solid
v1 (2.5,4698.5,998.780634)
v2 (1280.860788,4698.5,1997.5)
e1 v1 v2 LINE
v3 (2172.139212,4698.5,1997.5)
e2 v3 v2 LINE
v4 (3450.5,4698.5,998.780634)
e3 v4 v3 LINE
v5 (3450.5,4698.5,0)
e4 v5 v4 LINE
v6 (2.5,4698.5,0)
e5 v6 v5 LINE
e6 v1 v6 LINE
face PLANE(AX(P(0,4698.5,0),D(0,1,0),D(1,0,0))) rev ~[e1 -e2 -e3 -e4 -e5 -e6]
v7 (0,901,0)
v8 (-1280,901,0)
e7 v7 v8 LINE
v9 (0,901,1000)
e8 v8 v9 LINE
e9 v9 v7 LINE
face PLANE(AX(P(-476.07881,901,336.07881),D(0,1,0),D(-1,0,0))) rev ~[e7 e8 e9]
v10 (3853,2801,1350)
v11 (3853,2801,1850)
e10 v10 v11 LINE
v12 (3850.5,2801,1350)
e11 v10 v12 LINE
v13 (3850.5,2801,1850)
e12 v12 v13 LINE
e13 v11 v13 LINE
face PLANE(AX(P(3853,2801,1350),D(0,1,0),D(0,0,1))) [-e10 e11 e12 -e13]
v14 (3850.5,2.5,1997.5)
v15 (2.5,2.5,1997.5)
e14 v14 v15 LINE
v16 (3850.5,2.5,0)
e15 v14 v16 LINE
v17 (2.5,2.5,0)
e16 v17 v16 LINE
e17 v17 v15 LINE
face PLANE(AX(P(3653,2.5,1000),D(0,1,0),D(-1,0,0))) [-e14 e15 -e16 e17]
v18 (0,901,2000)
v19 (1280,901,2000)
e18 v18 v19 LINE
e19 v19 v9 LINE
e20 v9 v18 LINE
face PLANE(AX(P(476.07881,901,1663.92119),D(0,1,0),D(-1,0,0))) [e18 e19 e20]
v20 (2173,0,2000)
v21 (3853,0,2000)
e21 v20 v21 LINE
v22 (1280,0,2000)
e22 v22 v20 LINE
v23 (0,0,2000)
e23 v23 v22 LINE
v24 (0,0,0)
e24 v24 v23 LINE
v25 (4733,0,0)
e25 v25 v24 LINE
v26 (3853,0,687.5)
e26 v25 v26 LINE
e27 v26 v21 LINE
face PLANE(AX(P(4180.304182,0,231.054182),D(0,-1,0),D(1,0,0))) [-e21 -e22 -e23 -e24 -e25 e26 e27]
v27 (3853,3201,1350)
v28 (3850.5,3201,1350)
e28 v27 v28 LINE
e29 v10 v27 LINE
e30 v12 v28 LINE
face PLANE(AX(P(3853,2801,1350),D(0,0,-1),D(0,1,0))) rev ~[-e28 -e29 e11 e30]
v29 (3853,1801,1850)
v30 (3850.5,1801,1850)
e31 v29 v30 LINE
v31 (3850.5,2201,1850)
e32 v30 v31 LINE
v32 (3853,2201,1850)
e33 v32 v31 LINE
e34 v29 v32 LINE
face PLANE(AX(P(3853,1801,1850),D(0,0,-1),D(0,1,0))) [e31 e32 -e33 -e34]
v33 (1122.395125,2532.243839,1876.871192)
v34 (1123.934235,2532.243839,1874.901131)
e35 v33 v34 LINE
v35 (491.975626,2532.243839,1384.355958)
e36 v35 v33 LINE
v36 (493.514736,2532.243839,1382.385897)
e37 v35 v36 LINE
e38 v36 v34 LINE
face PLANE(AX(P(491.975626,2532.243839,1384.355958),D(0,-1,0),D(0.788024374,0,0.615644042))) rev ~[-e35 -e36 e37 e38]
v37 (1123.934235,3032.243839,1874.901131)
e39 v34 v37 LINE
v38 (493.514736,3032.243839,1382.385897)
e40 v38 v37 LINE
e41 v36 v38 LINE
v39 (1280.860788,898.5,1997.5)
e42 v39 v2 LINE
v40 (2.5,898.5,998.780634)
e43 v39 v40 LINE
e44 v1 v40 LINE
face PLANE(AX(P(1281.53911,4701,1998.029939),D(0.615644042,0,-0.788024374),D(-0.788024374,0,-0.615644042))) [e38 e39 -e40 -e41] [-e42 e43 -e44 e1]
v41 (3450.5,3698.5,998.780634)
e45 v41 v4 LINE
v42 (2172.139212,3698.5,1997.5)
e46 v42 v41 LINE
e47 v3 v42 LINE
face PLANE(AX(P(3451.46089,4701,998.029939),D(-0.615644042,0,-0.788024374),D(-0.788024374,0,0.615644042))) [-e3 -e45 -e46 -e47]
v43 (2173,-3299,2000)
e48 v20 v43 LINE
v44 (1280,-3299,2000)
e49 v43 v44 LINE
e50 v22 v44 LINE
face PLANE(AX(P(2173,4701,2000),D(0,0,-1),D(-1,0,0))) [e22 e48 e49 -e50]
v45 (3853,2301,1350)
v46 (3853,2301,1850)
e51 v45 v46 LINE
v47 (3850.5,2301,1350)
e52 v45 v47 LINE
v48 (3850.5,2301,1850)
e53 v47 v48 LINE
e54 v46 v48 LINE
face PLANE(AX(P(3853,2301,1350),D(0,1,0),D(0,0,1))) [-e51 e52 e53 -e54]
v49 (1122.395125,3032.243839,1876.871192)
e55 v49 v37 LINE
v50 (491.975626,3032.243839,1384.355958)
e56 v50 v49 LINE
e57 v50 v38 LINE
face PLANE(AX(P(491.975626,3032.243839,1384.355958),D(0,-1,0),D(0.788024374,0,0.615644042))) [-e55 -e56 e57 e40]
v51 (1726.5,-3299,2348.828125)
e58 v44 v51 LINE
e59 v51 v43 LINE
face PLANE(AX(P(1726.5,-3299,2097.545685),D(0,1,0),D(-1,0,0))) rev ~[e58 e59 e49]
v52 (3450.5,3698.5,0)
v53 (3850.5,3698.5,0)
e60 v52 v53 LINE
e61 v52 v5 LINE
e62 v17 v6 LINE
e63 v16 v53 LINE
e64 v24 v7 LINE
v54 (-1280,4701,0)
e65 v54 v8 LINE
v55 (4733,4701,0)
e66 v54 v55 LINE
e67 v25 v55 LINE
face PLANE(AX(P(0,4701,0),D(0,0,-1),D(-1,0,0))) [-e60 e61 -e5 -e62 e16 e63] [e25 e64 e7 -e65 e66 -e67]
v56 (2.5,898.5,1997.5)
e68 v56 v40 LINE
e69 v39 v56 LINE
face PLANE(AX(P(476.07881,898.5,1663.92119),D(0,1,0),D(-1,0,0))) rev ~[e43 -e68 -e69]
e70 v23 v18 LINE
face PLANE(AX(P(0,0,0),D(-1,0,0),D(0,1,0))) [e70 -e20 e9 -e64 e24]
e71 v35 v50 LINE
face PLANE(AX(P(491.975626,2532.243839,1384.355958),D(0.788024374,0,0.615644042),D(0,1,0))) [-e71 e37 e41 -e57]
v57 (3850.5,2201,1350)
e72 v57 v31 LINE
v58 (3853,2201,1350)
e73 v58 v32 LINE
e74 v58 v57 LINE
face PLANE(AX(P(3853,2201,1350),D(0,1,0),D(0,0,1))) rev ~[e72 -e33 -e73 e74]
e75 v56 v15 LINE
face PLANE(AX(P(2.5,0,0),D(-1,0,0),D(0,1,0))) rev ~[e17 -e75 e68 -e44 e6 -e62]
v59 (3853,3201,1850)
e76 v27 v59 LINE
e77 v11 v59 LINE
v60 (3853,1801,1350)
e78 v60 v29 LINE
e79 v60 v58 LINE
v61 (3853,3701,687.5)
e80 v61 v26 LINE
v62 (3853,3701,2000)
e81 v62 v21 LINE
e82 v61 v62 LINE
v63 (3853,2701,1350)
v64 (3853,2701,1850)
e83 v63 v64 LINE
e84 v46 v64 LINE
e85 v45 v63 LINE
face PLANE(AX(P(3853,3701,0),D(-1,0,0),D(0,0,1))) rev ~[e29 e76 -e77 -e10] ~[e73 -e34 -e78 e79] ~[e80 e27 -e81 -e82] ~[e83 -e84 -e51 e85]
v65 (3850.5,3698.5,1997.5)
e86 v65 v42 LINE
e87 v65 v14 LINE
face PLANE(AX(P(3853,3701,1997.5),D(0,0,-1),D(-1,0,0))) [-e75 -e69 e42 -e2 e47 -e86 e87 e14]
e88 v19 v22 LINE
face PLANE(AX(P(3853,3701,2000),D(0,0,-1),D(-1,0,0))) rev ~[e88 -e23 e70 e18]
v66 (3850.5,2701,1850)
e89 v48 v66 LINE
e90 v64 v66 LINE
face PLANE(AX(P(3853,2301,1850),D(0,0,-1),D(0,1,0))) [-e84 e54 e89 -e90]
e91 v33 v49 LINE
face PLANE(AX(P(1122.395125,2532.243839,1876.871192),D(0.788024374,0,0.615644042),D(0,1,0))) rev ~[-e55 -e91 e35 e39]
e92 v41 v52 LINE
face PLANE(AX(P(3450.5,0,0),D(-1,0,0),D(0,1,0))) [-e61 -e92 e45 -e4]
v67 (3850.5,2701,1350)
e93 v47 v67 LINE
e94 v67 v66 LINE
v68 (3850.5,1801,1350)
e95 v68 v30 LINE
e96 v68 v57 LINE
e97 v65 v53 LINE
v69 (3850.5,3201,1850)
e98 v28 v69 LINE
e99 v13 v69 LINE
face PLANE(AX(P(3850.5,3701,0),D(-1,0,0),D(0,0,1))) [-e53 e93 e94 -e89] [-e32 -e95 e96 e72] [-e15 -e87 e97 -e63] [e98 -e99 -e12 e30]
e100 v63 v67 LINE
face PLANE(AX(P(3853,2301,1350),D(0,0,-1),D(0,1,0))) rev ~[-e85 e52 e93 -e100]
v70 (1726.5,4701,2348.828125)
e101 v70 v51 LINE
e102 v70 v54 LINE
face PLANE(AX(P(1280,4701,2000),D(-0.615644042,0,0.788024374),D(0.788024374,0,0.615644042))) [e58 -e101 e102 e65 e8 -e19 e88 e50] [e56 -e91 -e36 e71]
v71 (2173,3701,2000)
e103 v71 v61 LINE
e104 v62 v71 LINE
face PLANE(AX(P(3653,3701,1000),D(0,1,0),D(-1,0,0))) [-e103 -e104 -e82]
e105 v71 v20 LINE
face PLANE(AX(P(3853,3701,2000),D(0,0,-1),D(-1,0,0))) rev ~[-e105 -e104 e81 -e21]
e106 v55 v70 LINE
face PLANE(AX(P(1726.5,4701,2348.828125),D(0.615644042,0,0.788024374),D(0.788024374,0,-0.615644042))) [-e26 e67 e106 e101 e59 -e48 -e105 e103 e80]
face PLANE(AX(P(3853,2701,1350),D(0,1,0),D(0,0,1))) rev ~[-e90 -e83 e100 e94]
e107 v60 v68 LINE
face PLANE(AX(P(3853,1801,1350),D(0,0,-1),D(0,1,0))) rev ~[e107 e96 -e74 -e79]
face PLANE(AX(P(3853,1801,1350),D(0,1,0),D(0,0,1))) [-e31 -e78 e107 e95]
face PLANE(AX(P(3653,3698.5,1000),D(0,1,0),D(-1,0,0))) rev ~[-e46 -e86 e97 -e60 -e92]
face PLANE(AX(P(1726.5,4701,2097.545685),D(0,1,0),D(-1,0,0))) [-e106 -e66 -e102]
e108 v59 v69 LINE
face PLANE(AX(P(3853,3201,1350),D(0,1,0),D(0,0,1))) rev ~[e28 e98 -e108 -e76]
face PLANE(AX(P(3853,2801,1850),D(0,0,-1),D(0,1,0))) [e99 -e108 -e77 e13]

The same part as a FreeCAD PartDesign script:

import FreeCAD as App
import Part
import Sketcher


def faces_at(feature, points):
    """Names of the faces that lie closest to the given points."""
    faces = feature.Shape.Faces
    near = lambda p: min(range(len(faces)), key=lambda i: faces[i].distToShape(Part.Vertex(*p))[0])
    return sorted({f"Face{near(p) + 1}" for p in points})

doc = App.newDocument("Part")
body = doc.addObject("PartDesign::Body", "Body")

# Sketch on XY plane
sketch1 = body.newObject("Sketcher::SketchObject", "Sketch")
sketch1.AttachmentSupport = (doc.getObject("XY_Plane"), [""])
sketch1.MapMode = "FlatFace"
sketch1.addGeometry([
    Part.LineSegment(App.Vector(0, 4701, 0), App.Vector(0, 0, 0)),
    Part.LineSegment(App.Vector(0, 0, 0), App.Vector(3453, 0, 0)),
    Part.LineSegment(App.Vector(3453, 0, 0), App.Vector(3453, 4701, 0)),
    Part.LineSegment(App.Vector(3453, 4701, 0), App.Vector(0, 4701, 0)),
], False)
sketch1.addConstraint([
    Sketcher.Constraint("Coincident", 0, 2, 1, 1),
    Sketcher.Constraint("Coincident", 1, 2, 2, 1),
    Sketcher.Constraint("Coincident", 2, 2, 3, 1),
    Sketcher.Constraint("Coincident", 3, 2, 0, 1),
    Sketcher.Constraint("Vertical", 0),
    Sketcher.Constraint("Horizontal", 1),
    Sketcher.Constraint("Vertical", 2),
    Sketcher.Constraint("Horizontal", 3),
    Sketcher.Constraint("Coincident", 0, 2, -1, 1),
    Sketcher.Constraint("DistanceX", 1, 1, 1, 2, 3453.0),
    Sketcher.Constraint("DistanceY", 0, 2, 0, 1, 4701.0),
])
pad1 = body.newObject("PartDesign::Pad", "Pad")
pad1.Profile = sketch1
pad1.Length = 2000

# Sketch on XZ plane
sketch2 = body.newObject("Sketcher::SketchObject", "Sketch001")
sketch2.AttachmentSupport = (doc.getObject("XZ_Plane"), [""])
sketch2.MapMode = "FlatFace"
sketch2.AttachmentOffset = App.Placement(App.Vector(0, 0, -4701), App.Rotation())
sketch2.addGeometry([
    Part.LineSegment(App.Vector(3453, 2000, 0), App.Vector(3453, 1000, 0)),
    Part.LineSegment(App.Vector(3453, 1000, 0), App.Vector(2173, 2000, 0)),
    Part.LineSegment(App.Vector(2173, 2000, 0), App.Vector(3453, 2000, 0)),
], False)
sketch2.addConstraint([
    Sketcher.Constraint("Coincident", 0, 2, 1, 1),
    Sketcher.Constraint("Coincident", 1, 2, 2, 1),
    Sketcher.Constraint("Coincident", 2, 2, 0, 1),
    Sketcher.Constraint("Vertical", 0),
    Sketcher.Constraint("Horizontal", 2),
    Sketcher.Constraint("DistanceX", 2, 1, 2, 2, 1280.0),
    Sketcher.Constraint("DistanceY", 0, 2, 0, 1, 1000.0),
    Sketcher.Constraint("DistanceX", -1, 1, 0, 2, 3453.0),
    Sketcher.Constraint("DistanceY", -1, 1, 0, 2, 1000.0),
])
pocket1 = body.newObject("PartDesign::Pocket", "Pocket")
pocket1.Profile = sketch2
pocket1.Length = 1000
pocket1.Reversed = True

# Sketch on XZ plane
sketch3 = body.newObject("Sketcher::SketchObject", "Sketch002")
sketch3.AttachmentSupport = (doc.getObject("XZ_Plane"), [""])
sketch3.MapMode = "FlatFace"
sketch3.AttachmentOffset = App.Placement(App.Vector(0, 0, -4701), App.Rotation())
sketch3.addGeometry([
    Part.LineSegment(App.Vector(1280, 2000, 0), App.Vector(0, 1000, 0)),
    Part.LineSegment(App.Vector(0, 1000, 0), App.Vector(0, 2000, 0)),
    Part.LineSegment(App.Vector(0, 2000, 0), App.Vector(1280, 2000, 0)),
], False)
sketch3.addConstraint([
    Sketcher.Constraint("Coincident", 0, 2, 1, 1),
    Sketcher.Constraint("Coincident", 1, 2, 2, 1),
    Sketcher.Constraint("Coincident", 2, 2, 0, 1),
    Sketcher.Constraint("Vertical", 1),
    Sketcher.Constraint("Horizontal", 2),
    Sketcher.Constraint("PointOnObject", 0, 2, -2),
    Sketcher.Constraint("DistanceX", 2, 1, 2, 2, 1280.0),
    Sketcher.Constraint("DistanceY", 1, 1, 1, 2, 1000.0),
    Sketcher.Constraint("DistanceY", -1, 1, 0, 2, 1000.0),
])
pocket2 = body.newObject("PartDesign::Pocket", "Pocket001")
pocket2.Profile = sketch3
pocket2.Length = 3800
pocket2.Reversed = True

# Sketch on XZ plane
sketch4 = body.newObject("Sketcher::SketchObject", "Sketch003")
sketch4.AttachmentSupport = (doc.getObject("XZ_Plane"), [""])
sketch4.MapMode = "FlatFace"
sketch4.AttachmentOffset = App.Placement(App.Vector(0, 0, -3701), App.Rotation())
sketch4.addGeometry([
    Part.LineSegment(App.Vector(3853, 2000, 0), App.Vector(3853, 0, 0)),
    Part.LineSegment(App.Vector(3853, 0, 0), App.Vector(3453, 0, 0)),
    Part.LineSegment(App.Vector(3453, 0, 0), App.Vector(3453, 2000, 0)),
    Part.LineSegment(App.Vector(3453, 2000, 0), App.Vector(3853, 2000, 0)),
], False)
sketch4.addConstraint([
    Sketcher.Constraint("Coincident", 0, 2, 1, 1),
    Sketcher.Constraint("Coincident", 1, 2, 2, 1),
    Sketcher.Constraint("Coincident", 2, 2, 3, 1),
    Sketcher.Constraint("Coincident", 3, 2, 0, 1),
    Sketcher.Constraint("Vertical", 0),
    Sketcher.Constraint("Horizontal", 1),
    Sketcher.Constraint("Vertical", 2),
    Sketcher.Constraint("Horizontal", 3),
    Sketcher.Constraint("PointOnObject", 0, 2, -1),
    Sketcher.Constraint("DistanceX", 1, 2, 1, 1, 400.0),
    Sketcher.Constraint("DistanceY", 0, 2, 0, 1, 2000.0),
    Sketcher.Constraint("DistanceX", -1, 1, 0, 2, 3853.0),
])
pad2 = body.newObject("PartDesign::Pad", "Pad001")
pad2.Profile = sketch4
pad2.Length = 3701
doc.recompute()

thickness = body.newObject("PartDesign::Thickness", "Thickness")
thickness.Base = (pad2, faces_at(pad2, [(1926.5, 2350.5, 0)]))
thickness.Value = 2.5
thickness.Reversed = True
thickness.Join = "Intersection"

# Sketch on YZ plane
sketch5 = body.newObject("Sketcher::SketchObject", "Sketch004")
sketch5.AttachmentSupport = (doc.getObject("YZ_Plane"), [""])
sketch5.MapMode = "FlatFace"
sketch5.AttachmentOffset = App.Placement(App.Vector(0, 0, 3853), App.Rotation())
sketch5.addGeometry([
    Part.LineSegment(App.Vector(2801, 1850, 0), App.Vector(2801, 1350, 0)),  # 0
    Part.LineSegment(App.Vector(2801, 1350, 0), App.Vector(3201, 1350, 0)),  # 1
    Part.LineSegment(App.Vector(3201, 1350, 0), App.Vector(3201, 1850, 0)),  # 2
    Part.LineSegment(App.Vector(3201, 1850, 0), App.Vector(2801, 1850, 0)),  # 3
    Part.LineSegment(App.Vector(2301, 1850, 0), App.Vector(2301, 1350, 0)),  # 4
    Part.LineSegment(App.Vector(2301, 1350, 0), App.Vector(2701, 1350, 0)),  # 5
    Part.LineSegment(App.Vector(2701, 1350, 0), App.Vector(2701, 1850, 0)),  # 6
    Part.LineSegment(App.Vector(2701, 1850, 0), App.Vector(2301, 1850, 0)),  # 7
    Part.LineSegment(App.Vector(1801, 1850, 0), App.Vector(1801, 1350, 0)),  # 8
    Part.LineSegment(App.Vector(1801, 1350, 0), App.Vector(2201, 1350, 0)),  # 9
    Part.LineSegment(App.Vector(2201, 1350, 0), App.Vector(2201, 1850, 0)),  # 10
    Part.LineSegment(App.Vector(2201, 1850, 0), App.Vector(1801, 1850, 0)),  # 11
], False)
sketch5.addConstraint([
    Sketcher.Constraint("Coincident", 0, 2, 1, 1),
    Sketcher.Constraint("Coincident", 1, 2, 2, 1),
    Sketcher.Constraint("Coincident", 2, 2, 3, 1),
    Sketcher.Constraint("Coincident", 3, 2, 0, 1),
    Sketcher.Constraint("Coincident", 4, 2, 5, 1),
    Sketcher.Constraint("Coincident", 5, 2, 6, 1),
    Sketcher.Constraint("Coincident", 6, 2, 7, 1),
    Sketcher.Constraint("Coincident", 7, 2, 4, 1),
    Sketcher.Constraint("Coincident", 8, 2, 9, 1),
    Sketcher.Constraint("Coincident", 9, 2, 10, 1),
    Sketcher.Constraint("Coincident", 10, 2, 11, 1),
    Sketcher.Constraint("Coincident", 11, 2, 8, 1),
    Sketcher.Constraint("Vertical", 0),
    Sketcher.Constraint("Horizontal", 1),
    Sketcher.Constraint("Vertical", 2),
    Sketcher.Constraint("Horizontal", 3),
    Sketcher.Constraint("Vertical", 4),
    Sketcher.Constraint("Horizontal", 5),
    Sketcher.Constraint("Vertical", 6),
    Sketcher.Constraint("Horizontal", 7),
    Sketcher.Constraint("Vertical", 8),
    Sketcher.Constraint("Horizontal", 9),
    Sketcher.Constraint("Vertical", 10),
    Sketcher.Constraint("Horizontal", 11),
    Sketcher.Constraint("Horizontal", 1, 2, 4, 2),
    Sketcher.Constraint("Horizontal", 3, 2, 6, 2),
    Sketcher.Constraint("Horizontal", 5, 2, 8, 2),
    Sketcher.Constraint("Horizontal", 7, 2, 10, 2),
    Sketcher.Constraint("Equal", 3, 5),
    Sketcher.Constraint("Equal", 7, 9),
    Sketcher.Constraint("DistanceX", 1, 1, 1, 2, 400.0),
    Sketcher.Constraint("DistanceY", 0, 2, 0, 1, 500.0),
    Sketcher.Constraint("DistanceX", -1, 1, 0, 2, 2801.0),
    Sketcher.Constraint("DistanceY", -1, 1, 0, 2, 1350.0),
    Sketcher.Constraint("DistanceX", -1, 1, 4, 2, 2301.0),
    Sketcher.Constraint("DistanceX", -1, 1, 8, 2, 1801.0),
])
pocket3 = body.newObject("PartDesign::Pocket", "Pocket002")
pocket3.Profile = sketch5
pocket3.Length = 2.5

# Sketch on an angled plane
sketch6 = body.newObject("Sketcher::SketchObject", "Sketch005")
sketch6.Placement = App.Placement(App.Vector(-485.142511, 0, 620.982414), App.Rotation(App.Vector(0.788024374, 0, 0.615644042), App.Vector(0, 1, 0), App.Vector(-0.615644042, 0, 0.788024374), "ZXY"))
sketch6.addGeometry([
    Part.LineSegment(App.Vector(1239.959283, 3032.243842, 0), App.Vector(1239.959283, 2532.243841, 0)),
    Part.LineSegment(App.Vector(1239.959283, 2532.243841, 0), App.Vector(2039.959283, 2532.243841, 0)),
    Part.LineSegment(App.Vector(2039.959283, 2532.243841, 0), App.Vector(2039.959283, 3032.243842, 0)),
    Part.LineSegment(App.Vector(2039.959283, 3032.243842, 0), App.Vector(1239.959283, 3032.243842, 0)),
], False)
sketch6.addConstraint([
    Sketcher.Constraint("Coincident", 0, 2, 1, 1),
    Sketcher.Constraint("Coincident", 1, 2, 2, 1),
    Sketcher.Constraint("Coincident", 2, 2, 3, 1),
    Sketcher.Constraint("Coincident", 3, 2, 0, 1),
    Sketcher.Constraint("Vertical", 0),
    Sketcher.Constraint("Horizontal", 1),
    Sketcher.Constraint("Vertical", 2),
    Sketcher.Constraint("Horizontal", 3),
    Sketcher.Constraint("DistanceX", 1, 1, 1, 2, 800.0),
    Sketcher.Constraint("DistanceY", 0, 2, 0, 1, 500.0),
    Sketcher.Constraint("DistanceY", -1, 1, 0, 2, 2532.243841),
    Sketcher.Constraint("DistanceX", -1, 1, 0, 2, 1239.959283),
])
pocket4 = body.newObject("PartDesign::Pocket", "Pocket003")
pocket4.Profile = sketch6
pocket4.Type = "ThroughAll"

# Sketch on XZ plane
sketch7 = body.newObject("Sketcher::SketchObject", "Sketch006")
sketch7.AttachmentSupport = (doc.getObject("XZ_Plane"), [""])
sketch7.MapMode = "FlatFace"
sketch7.AttachmentOffset = App.Placement(App.Vector(0, 0, -3701), App.Rotation())
sketch7.addGeometry([
    Part.LineSegment(App.Vector(3453, 0, 0), App.Vector(3453, 1000, 0)),
    Part.LineSegment(App.Vector(3453, 1000, 0), App.Vector(4733, 0, 0)),
    Part.LineSegment(App.Vector(4733, 0, 0), App.Vector(3453, 0, 0)),
], False)
sketch7.addConstraint([
    Sketcher.Constraint("Coincident", 0, 2, 1, 1),
    Sketcher.Constraint("Coincident", 1, 2, 2, 1),
    Sketcher.Constraint("Coincident", 2, 2, 0, 1),
    Sketcher.Constraint("Vertical", 0),
    Sketcher.Constraint("Horizontal", 2),
    Sketcher.Constraint("PointOnObject", 1, 2, -1),
    Sketcher.Constraint("DistanceX", 2, 2, 2, 1, 1280.0),
    Sketcher.Constraint("DistanceY", 0, 1, 0, 2, 1000.0),
    Sketcher.Constraint("DistanceX", -1, 1, 0, 2, 3453.0),
])
pad3 = body.newObject("PartDesign::Pad", "Pad002")
pad3.Profile = sketch7
pad3.Length = 1000
pad3.Reversed = True

# Sketch on XZ plane
sketch8 = body.newObject("Sketcher::SketchObject", "Sketch007")
sketch8.AttachmentSupport = (doc.getObject("XZ_Plane"), [""])
sketch8.MapMode = "FlatFace"
sketch8.AttachmentOffset = App.Placement(App.Vector(0, 0, -3701), App.Rotation())
sketch8.addGeometry([
    Part.LineSegment(App.Vector(4733, 0, 0), App.Vector(3853, 687.5, 0)),
    Part.LineSegment(App.Vector(3853, 687.5, 0), App.Vector(3853, 0, 0)),
    Part.LineSegment(App.Vector(3853, 0, 0), App.Vector(4733, 0, 0)),
], False)
sketch8.addConstraint([
    Sketcher.Constraint("Coincident", 0, 2, 1, 1),
    Sketcher.Constraint("Coincident", 1, 2, 2, 1),
    Sketcher.Constraint("Coincident", 2, 2, 0, 1),
    Sketcher.Constraint("Vertical", 1),
    Sketcher.Constraint("Horizontal", 2),
    Sketcher.Constraint("PointOnObject", 1, 2, -1),
    Sketcher.Constraint("DistanceX", 2, 1, 2, 2, 880.0),
    Sketcher.Constraint("DistanceY", 1, 2, 1, 1, 687.5),
    Sketcher.Constraint("DistanceX", -1, 1, 0, 2, 3853.0),
])
pad4 = body.newObject("PartDesign::Pad", "Pad003")
pad4.Profile = sketch8
pad4.Length = 3701

# Sketch on XZ plane
sketch9 = body.newObject("Sketcher::SketchObject", "Sketch008")
sketch9.AttachmentSupport = (doc.getObject("XZ_Plane"), [""])
sketch9.MapMode = "FlatFace"
sketch9.AttachmentOffset = App.Placement(App.Vector(0, 0, -4701), App.Rotation())
sketch9.addGeometry([
    Part.LineSegment(App.Vector(-1280, 0, 0), App.Vector(0, 1000, 0)),
    Part.LineSegment(App.Vector(0, 1000, 0), App.Vector(0, 0, 0)),
    Part.LineSegment(App.Vector(0, 0, 0), App.Vector(-1280, 0, 0)),
], False)
sketch9.addConstraint([
    Sketcher.Constraint("Coincident", 0, 2, 1, 1),
    Sketcher.Constraint("Coincident", 1, 2, 2, 1),
    Sketcher.Constraint("Coincident", 2, 2, 0, 1),
    Sketcher.Constraint("Vertical", 1),
    Sketcher.Constraint("Horizontal", 2),
    Sketcher.Constraint("Coincident", 1, 2, -1, 1),
    Sketcher.Constraint("DistanceX", 2, 2, 2, 1, 1280.0),
    Sketcher.Constraint("DistanceY", 1, 2, 1, 1, 1000.0),
])
pad5 = body.newObject("PartDesign::Pad", "Pad004")
pad5.Profile = sketch9
pad5.Length = 3800

# Sketch on XZ plane
sketch10 = body.newObject("Sketcher::SketchObject", "Sketch009")
sketch10.AttachmentSupport = (doc.getObject("XZ_Plane"), [""])
sketch10.MapMode = "FlatFace"
sketch10.AttachmentOffset = App.Placement(App.Vector(0, 0, -4701), App.Rotation())
sketch10.addGeometry([
    Part.LineSegment(App.Vector(2173, 2000, 0), App.Vector(1280, 2000, 0)),
    Part.LineSegment(App.Vector(1280, 2000, 0), App.Vector(1726.5, 2348.828125, 0)),
    Part.LineSegment(App.Vector(1726.5, 2348.828125, 0), App.Vector(2173, 2000, 0)),
], False)
sketch10.addConstraint([
    Sketcher.Constraint("Coincident", 0, 2, 1, 1),
    Sketcher.Constraint("Coincident", 1, 2, 2, 1),
    Sketcher.Constraint("Coincident", 2, 2, 0, 1),
    Sketcher.Constraint("Horizontal", 0),
    Sketcher.Constraint("Equal", 1, 2),
    Sketcher.Constraint("DistanceX", 0, 2, 0, 1, 893.0),
    Sketcher.Constraint("DistanceX", -1, 1, 0, 2, 1280.0),
    Sketcher.Constraint("DistanceY", -1, 1, 0, 2, 2000.0),
    Sketcher.Constraint("Distance", 1, 566.60684),
])
pad6 = body.newObject("PartDesign::Pad", "Pad005")
pad6.Profile = sketch10
pad6.Length = 8000

doc.recompute()
